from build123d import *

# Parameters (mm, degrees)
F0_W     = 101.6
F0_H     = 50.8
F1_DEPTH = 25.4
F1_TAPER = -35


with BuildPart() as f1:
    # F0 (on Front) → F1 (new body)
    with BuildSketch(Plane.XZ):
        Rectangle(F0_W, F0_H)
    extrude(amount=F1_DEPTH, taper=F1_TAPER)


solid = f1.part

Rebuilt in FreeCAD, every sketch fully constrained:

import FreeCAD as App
import Part
import Sketcher
Q = App.Units.Quantity

doc = App.newDocument("Part")
body = doc.addObject("PartDesign::Body", "Body")

# Sketch on XZ plane
sketch1 = body.newObject("Sketcher::SketchObject", "Sketch")
sketch1.AttachmentSupport = (doc.getObject("XZ_Plane"), [""])
sketch1.MapMode = "FlatFace"
sketch1.addGeometry([
    Part.LineSegment(App.Vector(-51, 25, 0), App.Vector(-51, -25, 0)),
    Part.LineSegment(App.Vector(-51, -25, 0), App.Vector(51, -25, 0)),
    Part.LineSegment(App.Vector(51, -25, 0), App.Vector(51, 25, 0)),
    Part.LineSegment(App.Vector(51, 25, 0), App.Vector(-51, 25, 0)),
], False)
sketch1.addConstraint([
    Sketcher.Constraint("Coincident", 0, 2, 1, 1),
    Sketcher.Constraint("Coincident", 1, 2, 2, 1),
    Sketcher.Constraint("Coincident", 2, 2, 3, 1),
    Sketcher.Constraint("Coincident", 3, 2, 0, 1),
    Sketcher.Constraint("Vertical", 0),
    Sketcher.Constraint("Horizontal", 1),
    Sketcher.Constraint("Vertical", 2),
    Sketcher.Constraint("Horizontal", 3),
    Sketcher.Constraint("Symmetric", 0, 2, 2, 2, -1, 1),
    Sketcher.Constraint("DistanceX", 1, 1, 1, 2, Q("4 in")),
    Sketcher.Constraint("DistanceY", 0, 2, 0, 1, Q("2 in")),
])
pad1 = body.newObject("PartDesign::Pad", "Pad")
pad1.Profile = sketch1
pad1.Length = Q("1 in")
pad1.TaperAngle = 35

doc.recompute()
